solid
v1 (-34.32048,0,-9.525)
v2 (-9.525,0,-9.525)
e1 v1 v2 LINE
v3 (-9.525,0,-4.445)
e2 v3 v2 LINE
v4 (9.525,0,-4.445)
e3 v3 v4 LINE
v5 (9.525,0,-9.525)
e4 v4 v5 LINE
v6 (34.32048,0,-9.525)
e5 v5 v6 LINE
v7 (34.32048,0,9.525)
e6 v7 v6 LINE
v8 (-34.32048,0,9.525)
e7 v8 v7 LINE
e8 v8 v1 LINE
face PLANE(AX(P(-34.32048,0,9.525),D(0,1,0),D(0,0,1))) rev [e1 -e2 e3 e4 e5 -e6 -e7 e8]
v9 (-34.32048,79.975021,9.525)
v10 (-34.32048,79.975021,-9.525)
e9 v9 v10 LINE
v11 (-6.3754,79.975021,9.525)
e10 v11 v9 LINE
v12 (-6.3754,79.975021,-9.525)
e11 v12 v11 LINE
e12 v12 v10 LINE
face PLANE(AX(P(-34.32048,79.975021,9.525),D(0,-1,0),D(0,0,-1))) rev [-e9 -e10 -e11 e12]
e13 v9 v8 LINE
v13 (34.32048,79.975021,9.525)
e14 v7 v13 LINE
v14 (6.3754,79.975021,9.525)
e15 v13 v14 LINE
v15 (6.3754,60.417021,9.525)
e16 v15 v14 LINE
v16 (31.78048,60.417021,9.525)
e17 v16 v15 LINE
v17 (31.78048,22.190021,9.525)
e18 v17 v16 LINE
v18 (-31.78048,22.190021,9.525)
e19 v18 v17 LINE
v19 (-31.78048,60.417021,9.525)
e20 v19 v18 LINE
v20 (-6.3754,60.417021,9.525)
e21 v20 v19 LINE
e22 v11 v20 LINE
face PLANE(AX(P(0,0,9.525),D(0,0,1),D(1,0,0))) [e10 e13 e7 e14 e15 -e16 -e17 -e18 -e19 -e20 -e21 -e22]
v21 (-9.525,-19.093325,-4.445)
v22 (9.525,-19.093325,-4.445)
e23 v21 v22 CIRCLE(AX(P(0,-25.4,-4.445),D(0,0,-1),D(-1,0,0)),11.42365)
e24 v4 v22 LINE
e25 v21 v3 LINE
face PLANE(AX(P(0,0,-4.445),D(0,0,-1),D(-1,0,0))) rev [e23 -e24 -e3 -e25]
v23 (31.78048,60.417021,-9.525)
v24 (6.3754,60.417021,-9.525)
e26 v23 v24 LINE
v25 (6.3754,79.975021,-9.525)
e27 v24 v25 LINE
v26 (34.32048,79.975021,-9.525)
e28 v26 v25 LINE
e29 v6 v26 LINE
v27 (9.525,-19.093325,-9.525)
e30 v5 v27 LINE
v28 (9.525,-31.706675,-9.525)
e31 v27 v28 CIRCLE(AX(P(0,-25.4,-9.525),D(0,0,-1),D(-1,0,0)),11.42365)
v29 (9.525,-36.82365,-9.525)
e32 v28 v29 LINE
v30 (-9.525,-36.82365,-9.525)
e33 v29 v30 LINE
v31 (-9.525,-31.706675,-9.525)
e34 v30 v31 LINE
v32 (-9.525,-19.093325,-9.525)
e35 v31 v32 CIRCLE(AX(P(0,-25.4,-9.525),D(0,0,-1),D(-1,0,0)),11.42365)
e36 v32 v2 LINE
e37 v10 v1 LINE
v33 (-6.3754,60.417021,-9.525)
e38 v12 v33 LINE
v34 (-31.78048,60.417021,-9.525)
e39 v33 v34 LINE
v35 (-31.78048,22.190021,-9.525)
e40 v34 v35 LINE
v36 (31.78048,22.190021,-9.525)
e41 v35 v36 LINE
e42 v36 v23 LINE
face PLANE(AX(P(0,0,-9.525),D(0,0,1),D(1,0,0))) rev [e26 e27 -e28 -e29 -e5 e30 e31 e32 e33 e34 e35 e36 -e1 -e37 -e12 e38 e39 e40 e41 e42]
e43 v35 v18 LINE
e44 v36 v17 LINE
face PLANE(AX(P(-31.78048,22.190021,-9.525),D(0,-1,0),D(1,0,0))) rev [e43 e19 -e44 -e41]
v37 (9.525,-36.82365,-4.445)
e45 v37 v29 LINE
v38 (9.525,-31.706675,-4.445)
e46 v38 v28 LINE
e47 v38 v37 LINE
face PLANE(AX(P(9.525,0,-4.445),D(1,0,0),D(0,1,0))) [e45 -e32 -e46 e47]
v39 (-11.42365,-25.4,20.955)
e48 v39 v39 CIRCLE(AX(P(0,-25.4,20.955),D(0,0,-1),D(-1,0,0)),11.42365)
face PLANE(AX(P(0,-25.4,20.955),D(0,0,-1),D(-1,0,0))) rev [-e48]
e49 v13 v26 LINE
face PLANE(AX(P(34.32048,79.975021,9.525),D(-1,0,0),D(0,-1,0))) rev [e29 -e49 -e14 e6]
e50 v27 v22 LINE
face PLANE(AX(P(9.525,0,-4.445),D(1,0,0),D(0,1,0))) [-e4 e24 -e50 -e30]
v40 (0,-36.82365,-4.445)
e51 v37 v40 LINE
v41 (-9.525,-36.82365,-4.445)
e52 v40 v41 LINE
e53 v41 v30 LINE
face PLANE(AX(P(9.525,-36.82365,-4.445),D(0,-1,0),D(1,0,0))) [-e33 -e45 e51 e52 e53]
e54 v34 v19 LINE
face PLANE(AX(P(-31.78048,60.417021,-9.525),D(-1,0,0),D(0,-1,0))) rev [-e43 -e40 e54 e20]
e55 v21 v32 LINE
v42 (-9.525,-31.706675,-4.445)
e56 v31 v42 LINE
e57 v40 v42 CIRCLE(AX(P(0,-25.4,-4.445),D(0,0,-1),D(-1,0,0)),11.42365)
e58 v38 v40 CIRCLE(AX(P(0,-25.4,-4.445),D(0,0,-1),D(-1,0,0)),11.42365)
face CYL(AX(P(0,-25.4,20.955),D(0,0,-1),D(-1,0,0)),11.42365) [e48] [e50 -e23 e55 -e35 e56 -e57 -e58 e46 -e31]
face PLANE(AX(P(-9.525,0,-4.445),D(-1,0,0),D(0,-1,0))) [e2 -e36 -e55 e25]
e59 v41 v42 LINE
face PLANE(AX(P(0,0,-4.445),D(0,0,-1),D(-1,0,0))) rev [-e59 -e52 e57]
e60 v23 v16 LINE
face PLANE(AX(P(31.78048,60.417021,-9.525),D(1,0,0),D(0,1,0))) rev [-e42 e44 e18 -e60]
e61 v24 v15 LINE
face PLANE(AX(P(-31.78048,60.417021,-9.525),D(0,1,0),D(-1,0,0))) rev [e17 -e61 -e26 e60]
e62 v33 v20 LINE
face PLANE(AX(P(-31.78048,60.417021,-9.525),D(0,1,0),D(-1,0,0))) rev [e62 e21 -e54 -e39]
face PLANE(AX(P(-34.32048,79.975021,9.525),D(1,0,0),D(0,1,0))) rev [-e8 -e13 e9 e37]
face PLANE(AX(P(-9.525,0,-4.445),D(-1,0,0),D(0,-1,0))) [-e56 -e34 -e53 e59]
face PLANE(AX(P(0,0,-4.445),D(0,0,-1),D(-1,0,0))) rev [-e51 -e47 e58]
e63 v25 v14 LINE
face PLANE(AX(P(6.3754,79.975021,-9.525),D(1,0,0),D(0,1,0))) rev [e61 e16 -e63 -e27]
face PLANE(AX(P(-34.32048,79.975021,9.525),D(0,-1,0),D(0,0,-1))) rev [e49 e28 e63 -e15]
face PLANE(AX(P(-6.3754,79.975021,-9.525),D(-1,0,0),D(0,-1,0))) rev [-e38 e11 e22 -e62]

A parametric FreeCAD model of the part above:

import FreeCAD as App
import Part
import Sketcher

V = App.Vector
Q = App.Units.Quantity

doc = App.newDocument("Part")
body = doc.addObject("PartDesign::Body", "Body")

sketch1 = body.newObject("Sketcher::SketchObject", "Sketch")
sketch1.AttachmentSupport = (doc.getObject("XY_Plane"), [""])
sketch1.MapMode = "FlatFace"
sketch1.addGeometry(Part.LineSegment(V(-34, 80, 0), V(-34, 0, 0)), False)
sketch1.addGeometry(Part.LineSegment(V(-34, 0, 0), V(34, 0, 0)), False)
sketch1.addGeometry(Part.LineSegment(V(34, 0, 0), V(34, 80, 0)), False)
sketch1.addGeometry(Part.LineSegment(V(34, 80, 0), V(-34, 80, 0)), False)
sketch1.addConstraint(Sketcher.Constraint("Coincident", 0, 2, 1, 1))
sketch1.addConstraint(Sketcher.Constraint("Coincident", 1, 2, 2, 1))
sketch1.addConstraint(Sketcher.Constraint("Coincident", 2, 2, 3, 1))
sketch1.addConstraint(Sketcher.Constraint("Coincident", 3, 2, 0, 1))
sketch1.addConstraint(Sketcher.Constraint("Vertical", 0))
sketch1.addConstraint(Sketcher.Constraint("Horizontal", 1))
sketch1.addConstraint(Sketcher.Constraint("Vertical", 2))
sketch1.addConstraint(Sketcher.Constraint("Horizontal", 3))
sketch1.addConstraint(Sketcher.Constraint("Symmetric", 0, 2, 1, 2, -1, 1))
sketch1.addConstraint(Sketcher.Constraint("DistanceX", 1, 1, 1, 2, Q("2.7024 in")))
sketch1.addConstraint(Sketcher.Constraint("DistanceY", 0, 2, 0, 1, 79.975021))
pad1 = body.newObject("PartDesign::Pad", "Pad")
pad1.Profile = sketch1
pad1.Length = Q("0.75 in")
pad1.Midplane = True

sketch2 = body.newObject("Sketcher::SketchObject", "Sketch001")
sketch2.AttachmentSupport = (doc.getObject("XY_Plane"), [""])
sketch2.MapMode = "FlatFace"
sketch2.AttachmentOffset = App.Placement(V(0, 0, 0.375 * 25.4), App.Rotation())
sketch2.addGeometry(Part.LineSegment(V(-32, 60, 0), V(-32, 22, 0)), False)
sketch2.addGeometry(Part.LineSegment(V(-32, 22, 0), V(32, 22, 0)), False)
sketch2.addGeometry(Part.LineSegment(V(32, 22, 0), V(32, 60, 0)), False)
sketch2.addGeometry(Part.LineSegment(V(32, 60, 0), V(-32, 60, 0)), False)
sketch2.addConstraint(Sketcher.Constraint("Coincident", 0, 2, 1, 1))
sketch2.addConstraint(Sketcher.Constraint("Coincident", 1, 2, 2, 1))
sketch2.addConstraint(Sketcher.Constraint("Coincident", 2, 2, 3, 1))
sketch2.addConstraint(Sketcher.Constraint("Coincident", 3, 2, 0, 1))
sketch2.addConstraint(Sketcher.Constraint("Vertical", 0))
sketch2.addConstraint(Sketcher.Constraint("Horizontal", 1))
sketch2.addConstraint(Sketcher.Constraint("Vertical", 2))
sketch2.addConstraint(Sketcher.Constraint("Horizontal", 3))
sketch2.addConstraint(Sketcher.Constraint("DistanceY", 0, 2, 0, 1, Q("1.505 in")))
sketch2.addConstraint(Sketcher.Constraint("DistanceX", 1, 1, 1, 2, Q("2.5024 in")))
sketch2.addConstraint(Sketcher.Constraint("DistanceX", 0, 2, -1, 1, Q("1.2512 in")))
sketch2.addConstraint(Sketcher.Constraint("DistanceY", -1, 1, 0, 2, 22.190021))
pocket1 = body.newObject("PartDesign::Pocket", "Pocket")
pocket1.Profile = sketch2
pocket1.Type = "ThroughAll"

sketch3 = body.newObject("Sketcher::SketchObject", "Sketch002")
sketch3.AttachmentSupport = (doc.getObject("XY_Plane"), [""])
sketch3.MapMode = "FlatFace"
sketch3.AttachmentOffset = App.Placement(V(0, 0, 0.375 * 25.4), App.Rotation())
sketch3.addGeometry(Part.LineSegment(V(-6, 80, 0), V(-6, 60, 0)), False)
sketch3.addGeometry(Part.LineSegment(V(-6, 60, 0), V(6, 60, 0)), False)
sketch3.addGeometry(Part.LineSegment(V(6, 60, 0), V(6, 80, 0)), False)
sketch3.addGeometry(Part.LineSegment(V(6, 80, 0), V(-6, 80, 0)), False)
sketch3.addConstraint(Sketcher.Constraint("Coincident", 0, 2, 1, 1))
sketch3.addConstraint(Sketcher.Constraint("Coincident", 1, 2, 2, 1))
sketch3.addConstraint(Sketcher.Constraint("Coincident", 2, 2, 3, 1))
sketch3.addConstraint(Sketcher.Constraint("Coincident", 3, 2, 0, 1))
sketch3.addConstraint(Sketcher.Constraint("Vertical", 0))
sketch3.addConstraint(Sketcher.Constraint("Horizontal", 1))
sketch3.addConstraint(Sketcher.Constraint("Vertical", 2))
sketch3.addConstraint(Sketcher.Constraint("Horizontal", 3))
sketch3.addConstraint(Sketcher.Constraint("DistanceY", 0, 2, 0, 1, Q("0.77 in")))
sketch3.addConstraint(Sketcher.Constraint("DistanceX", 1, 1, 1, 2, Q("0.502 in")))
sketch3.addConstraint(Sketcher.Constraint("DistanceX", 0, 2, -1, 1, Q("0.251 in")))
sketch3.addConstraint(Sketcher.Constraint("DistanceY", -1, 1, 0, 2, 60.417021))
pocket2 = body.newObject("PartDesign::Pocket", "Pocket001")
pocket2.Profile = sketch3
pocket2.Type = "ThroughAll"

sketch4 = body.newObject("Sketcher::SketchObject", "Sketch003")
sketch4.AttachmentSupport = (doc.getObject("XY_Plane"), [""])
sketch4.MapMode = "FlatFace"
sketch4.AttachmentOffset = App.Placement(V(0, 0, -0.375 * 25.4), App.Rotation())
sketch4.addGeometry(Part.LineSegment(V(10, 0, 0), V(10, -37, 0)), False)
sketch4.addGeometry(Part.LineSegment(V(10, -37, 0), V(-10, -37, 0)), False)
sketch4.addGeometry(Part.LineSegment(V(-10, -37, 0), V(-10, 0, 0)), False)
sketch4.addGeometry(Part.LineSegment(V(-10, 0, 0), V(10, 0, 0)), False)
sketch4.addConstraint(Sketcher.Constraint("Coincident", 0, 2, 1, 1))
sketch4.addConstraint(Sketcher.Constraint("Coincident", 1, 2, 2, 1))
sketch4.addConstraint(Sketcher.Constraint("Coincident", 2, 2, 3, 1))
sketch4.addConstraint(Sketcher.Constraint("Coincident", 3, 2, 0, 1))
sketch4.addConstraint(Sketcher.Constraint("Vertical", 0))
sketch4.addConstraint(Sketcher.Constraint("Horizontal", 1))
sketch4.addConstraint(Sketcher.Constraint("Vertical", 2))
sketch4.addConstraint(Sketcher.Constraint("Horizontal", 3))
sketch4.addConstraint(Sketcher.Constraint("Symmetric", 2, 2, 3, 2, -1, 1))
sketch4.addConstraint(Sketcher.Constraint("DistanceX", 1, 2, 1, 1, Q("0.75 in")))
sketch4.addConstraint(Sketcher.Constraint("DistanceY", 0, 2, 0, 1, 36.82365))
pad2 = body.newObject("PartDesign::Pad", "Pad001")
pad2.Profile = sketch4
pad2.Length = Q("0.2 in")

sketch5 = body.newObject("Sketcher::SketchObject", "Sketch004")
sketch5.AttachmentSupport = (doc.getObject("XY_Plane"), [""])
sketch5.MapMode = "FlatFace"
sketch5.AttachmentOffset = App.Placement(V(0, 0, -0.375 * 25.4), App.Rotation())
sketch5.addGeometry(Part.Circle(V(0, -25, 0), V(0, 0, 1), 11), False)
sketch5.addConstraint(Sketcher.Constraint("PointOnObject", 0, 3, -2))
sketch5.addConstraint(Sketcher.Constraint("DistanceY", 0, 3, -1, 1, Q("1 in")))
sketch5.addConstraint(Sketcher.Constraint("Diameter", 0, Q("0.8995 in")))
pad3 = body.newObject("PartDesign::Pad", "Pad002")
pad3.Profile = sketch5
pad3.Length = Q("1.2 in")

doc.recompute()
